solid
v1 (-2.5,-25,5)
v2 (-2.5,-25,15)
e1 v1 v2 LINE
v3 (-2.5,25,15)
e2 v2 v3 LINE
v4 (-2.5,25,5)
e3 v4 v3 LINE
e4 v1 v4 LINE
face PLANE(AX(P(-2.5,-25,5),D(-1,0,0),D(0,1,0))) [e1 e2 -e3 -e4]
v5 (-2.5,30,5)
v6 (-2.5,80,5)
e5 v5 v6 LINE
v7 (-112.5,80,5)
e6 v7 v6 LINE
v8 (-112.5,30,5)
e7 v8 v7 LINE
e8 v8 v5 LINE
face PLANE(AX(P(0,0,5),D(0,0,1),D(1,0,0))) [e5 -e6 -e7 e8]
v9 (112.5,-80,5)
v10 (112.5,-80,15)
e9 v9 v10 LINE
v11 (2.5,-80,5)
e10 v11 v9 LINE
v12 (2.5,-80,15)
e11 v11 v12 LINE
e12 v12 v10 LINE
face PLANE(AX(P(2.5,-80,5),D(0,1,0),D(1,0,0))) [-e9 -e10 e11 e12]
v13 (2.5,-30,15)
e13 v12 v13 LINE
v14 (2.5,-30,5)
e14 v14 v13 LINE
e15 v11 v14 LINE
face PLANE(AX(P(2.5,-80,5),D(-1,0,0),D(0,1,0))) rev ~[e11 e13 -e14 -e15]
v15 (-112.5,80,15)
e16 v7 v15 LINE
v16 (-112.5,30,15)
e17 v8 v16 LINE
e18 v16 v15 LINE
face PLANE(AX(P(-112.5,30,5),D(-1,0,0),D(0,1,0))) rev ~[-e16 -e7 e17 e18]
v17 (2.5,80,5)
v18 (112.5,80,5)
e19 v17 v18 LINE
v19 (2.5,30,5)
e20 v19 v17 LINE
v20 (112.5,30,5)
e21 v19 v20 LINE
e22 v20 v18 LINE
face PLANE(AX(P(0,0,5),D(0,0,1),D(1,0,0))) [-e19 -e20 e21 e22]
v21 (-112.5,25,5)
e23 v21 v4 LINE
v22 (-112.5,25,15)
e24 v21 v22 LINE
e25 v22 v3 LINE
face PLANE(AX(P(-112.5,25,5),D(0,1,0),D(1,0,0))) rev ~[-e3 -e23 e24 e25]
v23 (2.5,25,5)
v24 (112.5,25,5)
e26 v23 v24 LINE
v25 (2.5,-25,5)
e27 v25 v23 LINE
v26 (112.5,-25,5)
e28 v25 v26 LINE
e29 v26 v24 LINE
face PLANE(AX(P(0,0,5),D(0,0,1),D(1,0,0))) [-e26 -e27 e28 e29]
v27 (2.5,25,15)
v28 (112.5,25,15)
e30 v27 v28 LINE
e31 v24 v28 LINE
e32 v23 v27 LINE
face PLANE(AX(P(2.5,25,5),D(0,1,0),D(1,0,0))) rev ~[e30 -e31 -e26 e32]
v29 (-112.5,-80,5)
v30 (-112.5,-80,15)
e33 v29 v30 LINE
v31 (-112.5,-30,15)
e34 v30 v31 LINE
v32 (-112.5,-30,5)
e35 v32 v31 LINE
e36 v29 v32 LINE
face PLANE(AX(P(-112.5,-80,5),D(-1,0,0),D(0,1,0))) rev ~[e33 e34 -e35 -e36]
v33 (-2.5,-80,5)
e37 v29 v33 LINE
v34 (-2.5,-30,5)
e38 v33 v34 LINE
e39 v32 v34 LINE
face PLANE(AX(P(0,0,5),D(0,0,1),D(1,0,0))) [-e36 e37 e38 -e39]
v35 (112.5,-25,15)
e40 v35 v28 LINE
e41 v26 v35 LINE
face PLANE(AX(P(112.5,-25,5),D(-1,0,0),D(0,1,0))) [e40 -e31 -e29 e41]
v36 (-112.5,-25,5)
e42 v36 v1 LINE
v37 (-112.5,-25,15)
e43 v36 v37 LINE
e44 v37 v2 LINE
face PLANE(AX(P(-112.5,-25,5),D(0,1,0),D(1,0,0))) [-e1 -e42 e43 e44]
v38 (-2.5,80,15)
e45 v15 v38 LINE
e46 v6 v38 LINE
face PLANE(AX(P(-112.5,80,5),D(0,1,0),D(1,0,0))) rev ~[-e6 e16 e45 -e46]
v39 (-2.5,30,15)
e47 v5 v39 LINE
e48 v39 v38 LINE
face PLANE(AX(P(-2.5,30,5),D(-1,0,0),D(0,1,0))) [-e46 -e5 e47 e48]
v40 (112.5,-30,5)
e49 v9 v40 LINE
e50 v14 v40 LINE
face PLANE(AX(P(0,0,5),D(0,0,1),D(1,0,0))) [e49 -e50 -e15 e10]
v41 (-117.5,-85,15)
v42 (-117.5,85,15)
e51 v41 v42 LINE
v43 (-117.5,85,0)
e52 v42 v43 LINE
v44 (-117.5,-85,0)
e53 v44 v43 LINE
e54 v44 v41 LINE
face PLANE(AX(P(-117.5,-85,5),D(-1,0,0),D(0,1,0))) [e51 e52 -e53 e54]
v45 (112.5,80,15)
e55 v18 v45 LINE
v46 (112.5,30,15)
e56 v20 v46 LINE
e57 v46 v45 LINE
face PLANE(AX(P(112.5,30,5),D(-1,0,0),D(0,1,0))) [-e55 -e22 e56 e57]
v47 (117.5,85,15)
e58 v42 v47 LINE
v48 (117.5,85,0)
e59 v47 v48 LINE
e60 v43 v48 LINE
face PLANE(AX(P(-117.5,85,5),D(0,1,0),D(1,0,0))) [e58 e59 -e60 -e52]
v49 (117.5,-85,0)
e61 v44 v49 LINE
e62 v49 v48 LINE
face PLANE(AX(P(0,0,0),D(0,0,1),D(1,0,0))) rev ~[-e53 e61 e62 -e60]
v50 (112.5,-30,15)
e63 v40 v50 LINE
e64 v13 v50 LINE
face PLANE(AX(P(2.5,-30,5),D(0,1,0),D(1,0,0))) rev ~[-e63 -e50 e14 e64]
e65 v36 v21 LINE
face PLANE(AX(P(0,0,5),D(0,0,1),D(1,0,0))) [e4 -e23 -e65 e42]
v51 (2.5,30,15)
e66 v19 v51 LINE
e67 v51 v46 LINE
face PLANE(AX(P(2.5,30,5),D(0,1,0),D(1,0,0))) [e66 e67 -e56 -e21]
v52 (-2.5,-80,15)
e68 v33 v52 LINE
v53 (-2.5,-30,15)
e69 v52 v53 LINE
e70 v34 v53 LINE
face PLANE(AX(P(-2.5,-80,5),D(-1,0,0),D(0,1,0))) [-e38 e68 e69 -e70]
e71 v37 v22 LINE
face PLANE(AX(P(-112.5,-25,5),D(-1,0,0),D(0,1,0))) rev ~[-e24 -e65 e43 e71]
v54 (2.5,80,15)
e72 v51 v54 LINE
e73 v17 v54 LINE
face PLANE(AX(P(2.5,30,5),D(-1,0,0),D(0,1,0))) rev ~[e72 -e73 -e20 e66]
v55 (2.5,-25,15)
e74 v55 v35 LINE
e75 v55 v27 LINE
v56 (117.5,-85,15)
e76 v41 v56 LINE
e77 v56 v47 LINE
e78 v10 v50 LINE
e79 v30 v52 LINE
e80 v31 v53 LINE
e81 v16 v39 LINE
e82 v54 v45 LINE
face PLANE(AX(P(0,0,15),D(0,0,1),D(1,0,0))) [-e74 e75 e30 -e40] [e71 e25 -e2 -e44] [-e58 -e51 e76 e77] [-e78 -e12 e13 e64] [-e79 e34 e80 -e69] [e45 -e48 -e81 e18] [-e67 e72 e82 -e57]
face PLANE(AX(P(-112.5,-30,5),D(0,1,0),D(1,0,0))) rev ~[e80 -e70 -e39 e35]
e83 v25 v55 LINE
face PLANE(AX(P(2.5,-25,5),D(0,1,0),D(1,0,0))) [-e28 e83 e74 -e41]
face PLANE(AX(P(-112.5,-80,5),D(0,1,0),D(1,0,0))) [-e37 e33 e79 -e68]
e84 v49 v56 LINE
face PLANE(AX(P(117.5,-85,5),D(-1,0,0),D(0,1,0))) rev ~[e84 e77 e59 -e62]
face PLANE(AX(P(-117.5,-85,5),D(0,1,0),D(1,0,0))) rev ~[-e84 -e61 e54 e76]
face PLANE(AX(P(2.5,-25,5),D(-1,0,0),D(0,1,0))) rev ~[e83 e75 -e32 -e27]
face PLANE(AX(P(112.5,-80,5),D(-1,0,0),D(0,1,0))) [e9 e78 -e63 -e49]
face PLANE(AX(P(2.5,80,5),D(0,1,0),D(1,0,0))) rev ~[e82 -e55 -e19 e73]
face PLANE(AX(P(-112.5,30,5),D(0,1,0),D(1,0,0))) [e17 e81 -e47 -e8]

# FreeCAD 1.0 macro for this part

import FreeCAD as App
import Part
import Sketcher

V = App.Vector
Q = App.Units.Quantity

doc = App.newDocument("Part")
params = doc.addObject("Spreadsheet::Sheet", "Params")
for row, (alias, value) in enumerate([
    ("sketch1_width", "235 mm"),
    ("sketch1_height", "170 mm"),
    ("pad1_length", "5 mm"),
    ("sketch2_width", "235 mm"),
    ("sketch2_width2", "110 mm"),
    ("sketch2_height", "170 mm"),
    ("sketch2_height2", "50 mm"),
    ("pad2_length", "10 mm"),
], start=1):
    params.set(f"A{row}", alias)
    params.set(f"B{row}", "=" + value)
    params.setAlias(f"B{row}", alias)

body = doc.addObject("PartDesign::Body", "Body")

# Sketch on XY plane
sketch1 = body.newObject("Sketcher::SketchObject", "Sketch")
sketch1.AttachmentSupport = (doc.getObject("XY_Plane"), [""])
sketch1.MapMode = "FlatFace"
sketch1.addGeometry(Part.LineSegment(V(-118, 85, 0), V(-118, -85, 0)), False)
sketch1.addGeometry(Part.LineSegment(V(-118, -85, 0), V(118, -85, 0)), False)
sketch1.addGeometry(Part.LineSegment(V(118, -85, 0), V(118, 85, 0)), False)
sketch1.addGeometry(Part.LineSegment(V(118, 85, 0), V(-118, 85, 0)), False)
sketch1.addConstraint(Sketcher.Constraint("Coincident", 0, 2, 1, 1))
sketch1.addConstraint(Sketcher.Constraint("Coincident", 1, 2, 2, 1))
sketch1.addConstraint(Sketcher.Constraint("Coincident", 2, 2, 3, 1))
sketch1.addConstraint(Sketcher.Constraint("Coincident", 3, 2, 0, 1))
sketch1.addConstraint(Sketcher.Constraint("Vertical", 0))
sketch1.addConstraint(Sketcher.Constraint("Horizontal", 1))
sketch1.addConstraint(Sketcher.Constraint("Vertical", 2))
sketch1.addConstraint(Sketcher.Constraint("Horizontal", 3))
sketch1.addConstraint(Sketcher.Constraint("Symmetric", 0, 2, 2, 2, -1, 1))
sketch1.addConstraint(Sketcher.Constraint("DistanceX", 1, 1, 1, 2, Q("235 mm")))
sketch1.addConstraint(Sketcher.Constraint("DistanceY", 0, 2, 0, 1, Q("170 mm")))
sketch1.setExpression("Constraints[9]", "Params.sketch1_width")
sketch1.setExpression("Constraints[10]", "Params.sketch1_height")
pad1 = body.newObject("PartDesign::Pad", "Pad")
pad1.Profile = sketch1
pad1.setExpression("Length", "Params.pad1_length")

# Sketch on XY plane
sketch2 = body.newObject("Sketcher::SketchObject", "Sketch001")
sketch2.AttachmentSupport = (doc.getObject("XY_Plane"), [""])
sketch2.MapMode = "FlatFace"
sketch2.AttachmentOffset = App.Placement(V(0, 0, 5), App.Rotation())
sketch2.addGeometry(Part.LineSegment(V(-118, 85, 0), V(-118, -85, 0)), False)
sketch2.addGeometry(Part.LineSegment(V(-118, -85, 0), V(118, -85, 0)), False)
sketch2.addGeometry(Part.LineSegment(V(118, -85, 0), V(118, 85, 0)), False)
sketch2.addGeometry(Part.LineSegment(V(118, 85, 0), V(-118, 85, 0)), False)
sketch2.addGeometry(Part.LineSegment(V(-2, -80, 0), V(-112, -80, 0)), False)
sketch2.addGeometry(Part.LineSegment(V(-112, -80, 0), V(-112, -30, 0)), False)
sketch2.addGeometry(Part.LineSegment(V(-112, -30, 0), V(-2, -30, 0)), False)
sketch2.addGeometry(Part.LineSegment(V(-2, -30, 0), V(-2, -80, 0)), False)
sketch2.addGeometry(Part.LineSegment(V(112, -80, 0), V(2, -80, 0)), False)
sketch2.addGeometry(Part.LineSegment(V(2, -80, 0), V(2, -30, 0)), False)
sketch2.addGeometry(Part.LineSegment(V(2, -30, 0), V(112, -30, 0)), False)
sketch2.addGeometry(Part.LineSegment(V(112, -30, 0), V(112, -80, 0)), False)
sketch2.addGeometry(Part.LineSegment(V(-2, -25, 0), V(-112, -25, 0)), False)
sketch2.addGeometry(Part.LineSegment(V(-112, -25, 0), V(-112, 25, 0)), False)
sketch2.addGeometry(Part.LineSegment(V(-112, 25, 0), V(-2, 25, 0)), False)
sketch2.addGeometry(Part.LineSegment(V(-2, 25, 0), V(-2, -25, 0)), False)
sketch2.addGeometry(Part.LineSegment(V(-2, 30, 0), V(-112, 30, 0)), False)
sketch2.addGeometry(Part.LineSegment(V(-112, 30, 0), V(-112, 80, 0)), False)
sketch2.addGeometry(Part.LineSegment(V(-112, 80, 0), V(-2, 80, 0)), False)
sketch2.addGeometry(Part.LineSegment(V(-2, 80, 0), V(-2, 30, 0)), False)
sketch2.addGeometry(Part.LineSegment(V(112, -25, 0), V(2, -25, 0)), False)
sketch2.addGeometry(Part.LineSegment(V(2, -25, 0), V(2, 25, 0)), False)
sketch2.addGeometry(Part.LineSegment(V(2, 25, 0), V(112, 25, 0)), False)
sketch2.addGeometry(Part.LineSegment(V(112, 25, 0), V(112, -25, 0)), False)
sketch2.addGeometry(Part.LineSegment(V(112, 30, 0), V(2, 30, 0)), False)
sketch2.addGeometry(Part.LineSegment(V(2, 30, 0), V(2, 80, 0)), False)
sketch2.addGeometry(Part.LineSegment(V(2, 80, 0), V(112, 80, 0)), False)
sketch2.addGeometry(Part.LineSegment(V(112, 80, 0), V(112, 30, 0)), False)
sketch2.addConstraint(Sketcher.Constraint("Coincident", 0, 2, 1, 1))
sketch2.addConstraint(Sketcher.Constraint("Coincident", 1, 2, 2, 1))
sketch2.addConstraint(Sketcher.Constraint("Coincident", 2, 2, 3, 1))
sketch2.addConstraint(Sketcher.Constraint("Coincident", 3, 2, 0, 1))
sketch2.addConstraint(Sketcher.Constraint("Coincident", 4, 2, 5, 1))
sketch2.addConstraint(Sketcher.Constraint("Coincident", 5, 2, 6, 1))
sketch2.addConstraint(Sketcher.Constraint("Coincident", 6, 2, 7, 1))
sketch2.addConstraint(Sketcher.Constraint("Coincident", 7, 2, 4, 1))
sketch2.addConstraint(Sketcher.Constraint("Coincident", 8, 2, 9, 1))
sketch2.addConstraint(Sketcher.Constraint("Coincident", 9, 2, 10, 1))
sketch2.addConstraint(Sketcher.Constraint("Coincident", 10, 2, 11, 1))
sketch2.addConstraint(Sketcher.Constraint("Coincident", 11, 2, 8, 1))
sketch2.addConstraint(Sketcher.Constraint("Coincident", 12, 2, 13, 1))
sketch2.addConstraint(Sketcher.Constraint("Coincident", 13, 2, 14, 1))
sketch2.addConstraint(Sketcher.Constraint("Coincident", 14, 2, 15, 1))
sketch2.addConstraint(Sketcher.Constraint("Coincident", 15, 2, 12, 1))
sketch2.addConstraint(Sketcher.Constraint("Coincident", 16, 2, 17, 1))
sketch2.addConstraint(Sketcher.Constraint("Coincident", 17, 2, 18, 1))
sketch2.addConstraint(Sketcher.Constraint("Coincident", 18, 2, 19, 1))
sketch2.addConstraint(Sketcher.Constraint("Coincident", 19, 2, 16, 1))
sketch2.addConstraint(Sketcher.Constraint("Coincident", 20, 2, 21, 1))
sketch2.addConstraint(Sketcher.Constraint("Coincident", 21, 2, 22, 1))
sketch2.addConstraint(Sketcher.Constraint("Coincident", 22, 2, 23, 1))
sketch2.addConstraint(Sketcher.Constraint("Coincident", 23, 2, 20, 1))
sketch2.addConstraint(Sketcher.Constraint("Coincident", 24, 2, 25, 1))
sketch2.addConstraint(Sketcher.Constraint("Coincident", 25, 2, 26, 1))
sketch2.addConstraint(Sketcher.Constraint("Coincident", 26, 2, 27, 1))
sketch2.addConstraint(Sketcher.Constraint("Coincident", 27, 2, 24, 1))
sketch2.addConstraint(Sketcher.Constraint("Vertical", 0))
sketch2.addConstraint(Sketcher.Constraint("Horizontal", 1))
sketch2.addConstraint(Sketcher.Constraint("Vertical", 2))
sketch2.addConstraint(Sketcher.Constraint("Horizontal", 3))
sketch2.addConstraint(Sketcher.Constraint("Horizontal", 4))
sketch2.addConstraint(Sketcher.Constraint("Vertical", 5))
sketch2.addConstraint(Sketcher.Constraint("Horizontal", 6))
sketch2.addConstraint(Sketcher.Constraint("Vertical", 7))
sketch2.addConstraint(Sketcher.Constraint("Horizontal", 8))
sketch2.addConstraint(Sketcher.Constraint("Vertical", 9))
sketch2.addConstraint(Sketcher.Constraint("Horizontal", 10))
sketch2.addConstraint(Sketcher.Constraint("Vertical", 11))
sketch2.addConstraint(Sketcher.Constraint("Horizontal", 12))
sketch2.addConstraint(Sketcher.Constraint("Vertical", 13))
sketch2.addConstraint(Sketcher.Constraint("Horizontal", 14))
sketch2.addConstraint(Sketcher.Constraint("Vertical", 15))
sketch2.addConstraint(Sketcher.Constraint("Horizontal", 16))
sketch2.addConstraint(Sketcher.Constraint("Vertical", 17))
sketch2.addConstraint(Sketcher.Constraint("Horizontal", 18))
sketch2.addConstraint(Sketcher.Constraint("Vertical", 19))
sketch2.addConstraint(Sketcher.Constraint("Horizontal", 20))
sketch2.addConstraint(Sketcher.Constraint("Vertical", 21))
sketch2.addConstraint(Sketcher.Constraint("Horizontal", 22))
sketch2.addConstraint(Sketcher.Constraint("Vertical", 23))
sketch2.addConstraint(Sketcher.Constraint("Horizontal", 24))
sketch2.addConstraint(Sketcher.Constraint("Vertical", 25))
sketch2.addConstraint(Sketcher.Constraint("Horizontal", 26))
sketch2.addConstraint(Sketcher.Constraint("Vertical", 27))
sketch2.addConstraint(Sketcher.Constraint("Symmetric", 0, 2, 2, 2, -1, 1))
sketch2.addConstraint(Sketcher.Constraint("Symmetric", 10, 2, 16, 2, -1, 1))
sketch2.addConstraint(Sketcher.Constraint("Symmetric", 8, 2, 18, 2, -1, 1))
sketch2.addConstraint(Sketcher.Constraint("Symmetric", 14, 2, 20, 2, -1, 1))
sketch2.addConstraint(Sketcher.Constraint("Symmetric", 12, 2, 22, 2, -1, 1))
sketch2.addConstraint(Sketcher.Constraint("Symmetric", 6, 2, 24, 2, -1, 1))
sketch2.addConstraint(Sketcher.Constraint("Symmetric", 4, 2, 26, 2, -1, 1))
sketch2.addConstraint(Sketcher.Constraint("Symmetric", 7, 2, 8, 2, -2))
sketch2.addConstraint(Sketcher.Constraint("Symmetric", 5, 2, 10, 2, -2))
sketch2.addConstraint(Sketcher.Constraint("Horizontal", 15, 2, 20, 2))
sketch2.addConstraint(Sketcher.Constraint("Vertical", 5, 2, 12, 2))
sketch2.addConstraint(Sketcher.Constraint("Vertical", 7, 2, 14, 2))
sketch2.addConstraint(Sketcher.Constraint("Equal", 11, 13))
sketch2.addConstraint(Sketcher.Constraint("DistanceX", 1, 1, 1, 2, Q("235 mm")))
sketch2.addConstraint(Sketcher.Constraint("DistanceX", 4, 2, 4, 1, Q("110 mm")))
sketch2.addConstraint(Sketcher.Constraint("DistanceY", 0, 2, 0, 1, Q("170 mm")))
sketch2.addConstraint(Sketcher.Constraint("DistanceY", 5, 1, 5, 2, Q("50 mm")))
sketch2.addConstraint(Sketcher.Constraint("DistanceY", 4, 2, -1, 1, Q("80 mm")))
sketch2.addConstraint(Sketcher.Constraint("DistanceX", 0, 2, 4, 2, Q("5 mm")))
sketch2.setExpression("Constraints[69]", "Params.sketch2_width")
sketch2.setExpression("Constraints[70]", "Params.sketch2_width2")
sketch2.setExpression("Constraints[71]", "Params.sketch2_height")
sketch2.setExpression("Constraints[72]", "Params.sketch2_height2")
pad2 = body.newObject("PartDesign::Pad", "Pad001")
pad2.Profile = sketch2
pad2.setExpression("Length", "Params.pad2_length")

doc.recompute()
